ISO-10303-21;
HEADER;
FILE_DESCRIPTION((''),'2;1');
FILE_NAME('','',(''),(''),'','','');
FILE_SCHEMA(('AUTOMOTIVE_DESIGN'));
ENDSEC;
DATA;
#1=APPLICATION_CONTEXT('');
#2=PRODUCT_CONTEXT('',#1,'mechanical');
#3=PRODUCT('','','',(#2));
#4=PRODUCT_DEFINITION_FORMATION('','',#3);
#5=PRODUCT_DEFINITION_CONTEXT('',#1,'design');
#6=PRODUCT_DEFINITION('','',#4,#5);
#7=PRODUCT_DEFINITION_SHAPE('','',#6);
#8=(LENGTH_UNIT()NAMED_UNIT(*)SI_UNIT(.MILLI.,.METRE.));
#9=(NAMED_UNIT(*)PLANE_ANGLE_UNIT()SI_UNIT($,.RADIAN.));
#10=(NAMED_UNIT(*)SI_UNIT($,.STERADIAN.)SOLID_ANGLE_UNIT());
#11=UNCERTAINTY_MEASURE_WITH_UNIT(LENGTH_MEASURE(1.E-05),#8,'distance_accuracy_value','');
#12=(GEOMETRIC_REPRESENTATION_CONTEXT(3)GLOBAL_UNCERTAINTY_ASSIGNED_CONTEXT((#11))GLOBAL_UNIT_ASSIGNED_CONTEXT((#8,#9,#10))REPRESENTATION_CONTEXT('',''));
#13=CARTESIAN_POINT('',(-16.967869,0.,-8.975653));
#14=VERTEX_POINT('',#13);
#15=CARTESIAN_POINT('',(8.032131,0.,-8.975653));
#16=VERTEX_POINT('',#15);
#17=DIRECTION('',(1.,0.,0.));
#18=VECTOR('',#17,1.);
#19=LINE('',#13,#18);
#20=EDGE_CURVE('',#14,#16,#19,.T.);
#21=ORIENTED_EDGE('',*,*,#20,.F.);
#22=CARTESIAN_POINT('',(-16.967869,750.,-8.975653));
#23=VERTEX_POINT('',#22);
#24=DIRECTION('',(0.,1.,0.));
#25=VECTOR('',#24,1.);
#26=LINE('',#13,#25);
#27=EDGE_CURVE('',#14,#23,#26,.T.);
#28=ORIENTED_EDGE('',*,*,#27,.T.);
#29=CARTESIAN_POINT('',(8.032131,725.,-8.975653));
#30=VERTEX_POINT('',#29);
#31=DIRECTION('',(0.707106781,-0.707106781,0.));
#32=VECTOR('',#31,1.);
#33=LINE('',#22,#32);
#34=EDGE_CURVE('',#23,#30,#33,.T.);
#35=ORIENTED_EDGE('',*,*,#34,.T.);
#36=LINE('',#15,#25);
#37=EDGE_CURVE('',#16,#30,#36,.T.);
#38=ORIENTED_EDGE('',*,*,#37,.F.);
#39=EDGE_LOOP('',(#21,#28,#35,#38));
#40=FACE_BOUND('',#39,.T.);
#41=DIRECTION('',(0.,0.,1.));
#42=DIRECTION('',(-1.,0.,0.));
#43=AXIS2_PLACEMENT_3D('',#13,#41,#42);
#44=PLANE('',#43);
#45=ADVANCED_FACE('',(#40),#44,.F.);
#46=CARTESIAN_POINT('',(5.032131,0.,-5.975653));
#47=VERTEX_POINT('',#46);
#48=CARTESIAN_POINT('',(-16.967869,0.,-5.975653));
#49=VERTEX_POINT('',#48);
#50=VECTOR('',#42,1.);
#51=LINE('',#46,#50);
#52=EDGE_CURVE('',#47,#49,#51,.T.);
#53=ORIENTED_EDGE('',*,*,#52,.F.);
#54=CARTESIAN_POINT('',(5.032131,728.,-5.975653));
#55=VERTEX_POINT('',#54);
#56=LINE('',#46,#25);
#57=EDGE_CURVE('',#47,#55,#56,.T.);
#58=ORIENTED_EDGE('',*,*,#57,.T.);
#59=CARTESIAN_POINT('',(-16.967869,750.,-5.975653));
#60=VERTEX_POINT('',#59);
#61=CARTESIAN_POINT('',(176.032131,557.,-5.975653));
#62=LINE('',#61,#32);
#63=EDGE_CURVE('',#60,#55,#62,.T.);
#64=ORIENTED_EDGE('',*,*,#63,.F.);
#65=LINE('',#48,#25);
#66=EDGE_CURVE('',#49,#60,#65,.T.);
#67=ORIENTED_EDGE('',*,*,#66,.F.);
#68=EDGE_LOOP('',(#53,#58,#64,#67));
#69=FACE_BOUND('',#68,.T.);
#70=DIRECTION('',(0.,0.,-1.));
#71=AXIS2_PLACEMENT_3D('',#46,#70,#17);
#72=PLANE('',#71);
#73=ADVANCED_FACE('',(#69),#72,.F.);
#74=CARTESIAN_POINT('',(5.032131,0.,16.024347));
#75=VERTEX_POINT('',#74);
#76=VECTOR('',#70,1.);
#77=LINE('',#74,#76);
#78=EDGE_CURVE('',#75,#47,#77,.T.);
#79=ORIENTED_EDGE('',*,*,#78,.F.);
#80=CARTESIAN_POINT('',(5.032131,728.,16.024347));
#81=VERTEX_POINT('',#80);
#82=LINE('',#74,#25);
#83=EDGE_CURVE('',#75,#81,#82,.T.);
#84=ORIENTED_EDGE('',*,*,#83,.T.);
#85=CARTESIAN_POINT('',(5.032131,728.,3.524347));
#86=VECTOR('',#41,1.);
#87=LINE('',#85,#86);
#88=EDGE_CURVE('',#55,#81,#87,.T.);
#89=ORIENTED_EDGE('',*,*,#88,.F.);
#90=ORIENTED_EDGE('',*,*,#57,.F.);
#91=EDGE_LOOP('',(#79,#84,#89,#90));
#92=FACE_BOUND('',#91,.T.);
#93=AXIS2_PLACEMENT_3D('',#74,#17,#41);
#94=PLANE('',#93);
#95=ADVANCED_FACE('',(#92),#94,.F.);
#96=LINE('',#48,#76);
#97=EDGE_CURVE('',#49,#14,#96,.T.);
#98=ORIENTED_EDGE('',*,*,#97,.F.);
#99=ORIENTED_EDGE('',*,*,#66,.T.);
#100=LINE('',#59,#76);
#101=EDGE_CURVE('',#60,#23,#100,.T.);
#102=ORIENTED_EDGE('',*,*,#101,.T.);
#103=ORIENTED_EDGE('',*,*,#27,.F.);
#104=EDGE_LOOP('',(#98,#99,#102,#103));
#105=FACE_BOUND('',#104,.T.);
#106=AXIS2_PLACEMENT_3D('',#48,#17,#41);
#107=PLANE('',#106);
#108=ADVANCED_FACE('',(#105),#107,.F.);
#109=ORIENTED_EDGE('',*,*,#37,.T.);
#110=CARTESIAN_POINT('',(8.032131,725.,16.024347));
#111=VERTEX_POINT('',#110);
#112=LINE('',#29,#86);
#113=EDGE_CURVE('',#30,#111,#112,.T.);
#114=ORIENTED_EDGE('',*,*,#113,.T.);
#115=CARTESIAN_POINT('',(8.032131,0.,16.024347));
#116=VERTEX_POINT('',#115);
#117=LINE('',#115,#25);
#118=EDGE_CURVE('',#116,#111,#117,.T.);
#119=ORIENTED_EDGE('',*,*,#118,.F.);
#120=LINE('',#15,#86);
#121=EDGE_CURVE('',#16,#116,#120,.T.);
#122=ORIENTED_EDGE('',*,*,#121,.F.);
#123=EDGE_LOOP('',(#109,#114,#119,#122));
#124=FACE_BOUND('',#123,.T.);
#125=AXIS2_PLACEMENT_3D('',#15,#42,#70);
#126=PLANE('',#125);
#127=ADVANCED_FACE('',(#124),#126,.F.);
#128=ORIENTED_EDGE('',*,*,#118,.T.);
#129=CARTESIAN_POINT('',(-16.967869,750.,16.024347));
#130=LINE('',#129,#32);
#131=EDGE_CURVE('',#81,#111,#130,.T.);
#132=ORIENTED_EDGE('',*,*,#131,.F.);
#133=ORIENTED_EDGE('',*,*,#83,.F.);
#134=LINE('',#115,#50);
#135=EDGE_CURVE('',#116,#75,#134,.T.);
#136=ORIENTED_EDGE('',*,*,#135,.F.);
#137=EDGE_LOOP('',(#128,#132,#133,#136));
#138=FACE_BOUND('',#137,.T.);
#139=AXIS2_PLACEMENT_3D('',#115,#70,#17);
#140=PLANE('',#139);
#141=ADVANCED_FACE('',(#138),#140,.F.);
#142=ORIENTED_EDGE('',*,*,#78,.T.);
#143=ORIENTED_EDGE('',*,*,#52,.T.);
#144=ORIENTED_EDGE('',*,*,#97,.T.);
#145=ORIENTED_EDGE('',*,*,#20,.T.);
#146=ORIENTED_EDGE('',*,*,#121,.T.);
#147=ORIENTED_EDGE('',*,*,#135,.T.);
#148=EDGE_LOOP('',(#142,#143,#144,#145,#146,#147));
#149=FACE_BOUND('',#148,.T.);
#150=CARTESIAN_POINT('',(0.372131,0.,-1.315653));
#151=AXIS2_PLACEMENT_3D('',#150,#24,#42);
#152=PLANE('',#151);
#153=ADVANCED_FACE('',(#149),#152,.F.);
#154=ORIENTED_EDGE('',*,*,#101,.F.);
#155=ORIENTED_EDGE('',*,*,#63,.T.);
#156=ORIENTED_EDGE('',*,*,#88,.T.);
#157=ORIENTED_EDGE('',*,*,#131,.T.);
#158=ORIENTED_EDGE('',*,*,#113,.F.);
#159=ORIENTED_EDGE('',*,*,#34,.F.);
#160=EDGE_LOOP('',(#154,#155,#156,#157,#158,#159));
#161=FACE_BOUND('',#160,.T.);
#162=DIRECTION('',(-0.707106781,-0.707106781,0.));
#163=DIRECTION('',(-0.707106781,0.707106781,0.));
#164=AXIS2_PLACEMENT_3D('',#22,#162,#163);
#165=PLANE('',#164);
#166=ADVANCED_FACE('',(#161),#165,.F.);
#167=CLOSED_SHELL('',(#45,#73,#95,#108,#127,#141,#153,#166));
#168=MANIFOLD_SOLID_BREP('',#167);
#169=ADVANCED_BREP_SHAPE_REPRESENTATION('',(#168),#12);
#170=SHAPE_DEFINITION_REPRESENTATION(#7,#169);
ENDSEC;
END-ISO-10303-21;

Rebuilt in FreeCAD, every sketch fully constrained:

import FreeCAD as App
import Part
import Sketcher
from FreeCAD import Vector
Q = App.Units.Quantity

doc = App.newDocument("Part")
body = doc.addObject("PartDesign::Body", "Body")

# Sketch on XZ plane
sketch1 = body.newObject("Sketcher::SketchObject", "Sketch")
sketch1.AttachmentSupport = (doc.getObject("XZ_Plane"), [""])
sketch1.MapMode = "FlatFace"
sketch1.addGeometry(Part.LineSegment(Vector(5, -6, 0), Vector(-17, -6, 0)), False)
sketch1.addGeometry(Part.LineSegment(Vector(-17, -6, 0), Vector(-17, -9, 0)), False)
sketch1.addGeometry(Part.LineSegment(Vector(-17, -9, 0), Vector(8, -9, 0)), False)
sketch1.addGeometry(Part.LineSegment(Vector(8, -9, 0), Vector(8, 16, 0)), False)
sketch1.addGeometry(Part.LineSegment(Vector(8, 16, 0), Vector(5, 16, 0)), False)
sketch1.addGeometry(Part.LineSegment(Vector(5, 16, 0), Vector(5, -6, 0)), False)
sketch1.addConstraint(Sketcher.Constraint("Coincident", 0, 2, 1, 1))
sketch1.addConstraint(Sketcher.Constraint("Coincident", 1, 2, 2, 1))
sketch1.addConstraint(Sketcher.Constraint("Coincident", 2, 2, 3, 1))
sketch1.addConstraint(Sketcher.Constraint("Coincident", 3, 2, 4, 1))
sketch1.addConstraint(Sketcher.Constraint("Coincident", 4, 2, 5, 1))
sketch1.addConstraint(Sketcher.Constraint("Coincident", 5, 2, 0, 1))
sketch1.addConstraint(Sketcher.Constraint("Horizontal", 0))
sketch1.addConstraint(Sketcher.Constraint("Vertical", 1))
sketch1.addConstraint(Sketcher.Constraint("Horizontal", 2))
sketch1.addConstraint(Sketcher.Constraint("Vertical", 3))
sketch1.addConstraint(Sketcher.Constraint("Horizontal", 4))
sketch1.addConstraint(Sketcher.Constraint("Vertical", 5))
sketch1.addConstraint(Sketcher.Constraint("Equal", 4, 1))
sketch1.addConstraint(Sketcher.Constraint("Equal", 2, 3))
sketch1.addConstraint(Sketcher.Constraint("DistanceX", 0, 2, 0, 1, Q("22 mm")))
sketch1.addConstraint(Sketcher.Constraint("DistanceX", 2, 1, 2, 2, Q("25 mm")))
sketch1.addConstraint(Sketcher.Constraint("DistanceX", 0, 2, -1, 1, Q("16.967869 mm")))
sketch1.addConstraint(Sketcher.Constraint("DistanceY", 0, 2, -1, 1, Q("5.975653 mm")))
pad1 = body.newObject("PartDesign::Pad", "Pad")
pad1.Profile = sketch1
pad1.Length = 750

# Sketch on XY plane
sketch2 = body.newObject("Sketcher::SketchObject", "Sketch001")
sketch2.AttachmentSupport = (doc.getObject("XY_Plane"), [""])
sketch2.MapMode = "FlatFace"
sketch2.AttachmentOffset = App.Placement(Vector(0, 0, -8.975653), App.Rotation())
sketch2.addGeometry(Part.LineSegment(Vector(8, -750, 0), Vector(-17, -750, 0)), False)
sketch2.addGeometry(Part.LineSegment(Vector(-17, -750, 0), Vector(8, -725, 0)), False)
sketch2.addGeometry(Part.LineSegment(Vector(8, -725, 0), Vector(8, -750, 0)), False)
sketch2.addConstraint(Sketcher.Constraint("Coincident", 0, 2, 1, 1))
sketch2.addConstraint(Sketcher.Constraint("Coincident", 1, 2, 2, 1))
sketch2.addConstraint(Sketcher.Constraint("Coincident", 2, 2, 0, 1))
sketch2.addConstraint(Sketcher.Constraint("Horizontal", 0))
sketch2.addConstraint(Sketcher.Constraint("Vertical", 2))
sketch2.addConstraint(Sketcher.Constraint("Equal", 0, 2))
sketch2.addConstraint(Sketcher.Constraint("DistanceX", 0, 2, 0, 1, Q("25 mm")))
sketch2.addConstraint(Sketcher.Constraint("DistanceY", 0, 2, -1, 1, Q("750 mm")))
sketch2.addConstraint(Sketcher.Constraint("DistanceX", 0, 2, -1, 1, Q("16.967869 mm")))
pocket1 = body.newObject("PartDesign::Pocket", "Pocket")
pocket1.Profile = sketch2
pocket1.Length = 25
pocket1.Reversed = True
body2 = doc.addObject("PartDesign::Body", "Body001")
doc.recompute()

mirroring = doc.addObject("Part::Mirroring", "Mirroring")
mirroring.Source = body
mirroring.Base = Vector(0, 0, 0)
mirroring.Normal = Vector(0, -1, 0)
body2.BaseFeature = mirroring
doc.recompute()
body.Visibility = False
mirroring.Visibility = False

doc.recompute()
